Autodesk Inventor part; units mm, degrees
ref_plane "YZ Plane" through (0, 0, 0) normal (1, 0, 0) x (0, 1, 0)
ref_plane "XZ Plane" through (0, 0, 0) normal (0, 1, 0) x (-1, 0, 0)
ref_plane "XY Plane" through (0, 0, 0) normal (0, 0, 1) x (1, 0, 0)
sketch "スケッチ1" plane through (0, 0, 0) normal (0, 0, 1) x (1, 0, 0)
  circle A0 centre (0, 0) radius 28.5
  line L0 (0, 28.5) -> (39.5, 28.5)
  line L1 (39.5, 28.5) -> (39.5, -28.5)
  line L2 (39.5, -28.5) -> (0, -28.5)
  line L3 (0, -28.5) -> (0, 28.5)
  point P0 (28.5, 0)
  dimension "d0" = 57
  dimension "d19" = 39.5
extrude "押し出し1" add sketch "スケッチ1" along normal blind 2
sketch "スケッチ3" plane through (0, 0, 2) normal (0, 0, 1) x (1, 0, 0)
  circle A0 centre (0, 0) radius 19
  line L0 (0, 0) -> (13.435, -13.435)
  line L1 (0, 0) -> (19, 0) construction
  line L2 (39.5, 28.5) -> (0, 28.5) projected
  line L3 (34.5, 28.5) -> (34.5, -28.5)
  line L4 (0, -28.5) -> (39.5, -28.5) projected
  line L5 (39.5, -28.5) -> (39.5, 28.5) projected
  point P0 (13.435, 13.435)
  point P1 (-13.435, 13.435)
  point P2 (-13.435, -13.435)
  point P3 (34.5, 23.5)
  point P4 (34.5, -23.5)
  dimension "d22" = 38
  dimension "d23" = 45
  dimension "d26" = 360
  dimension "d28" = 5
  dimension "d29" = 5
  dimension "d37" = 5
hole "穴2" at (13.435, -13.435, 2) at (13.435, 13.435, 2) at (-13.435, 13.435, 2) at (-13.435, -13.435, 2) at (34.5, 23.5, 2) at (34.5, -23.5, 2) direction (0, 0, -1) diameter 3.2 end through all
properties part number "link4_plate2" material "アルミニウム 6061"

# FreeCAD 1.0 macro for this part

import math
import FreeCAD as App
import Part
import Sketcher

doc = App.newDocument("Part")
body = doc.addObject("PartDesign::Body", "Body")

# Sketch on XY plane
sketch1 = body.newObject("Sketcher::SketchObject", "Sketch")
sketch1.AttachmentSupport = (doc.getObject("XY_Plane"), [""])
sketch1.MapMode = "FlatFace"
sketch1.addGeometry([
    Part.LineSegment(App.Vector(0, -28, 0), App.Vector(40, -28, 0)),
    Part.LineSegment(App.Vector(40, -28, 0), App.Vector(40, 28, 0)),
    Part.LineSegment(App.Vector(40, 28, 0), App.Vector(0, 28, 0)),
    Part.ArcOfCircle(Part.Circle(App.Vector(0, 0, 0), App.Vector(0, 0, 1), 28), math.radians(90), math.radians(270)),
], False)
sketch1.addConstraint([
    Sketcher.Constraint("Coincident", 0, 2, 1, 1),
    Sketcher.Constraint("Coincident", 1, 2, 2, 1),
    Sketcher.Constraint("Tangent", 2, 2, 3, 1),
    Sketcher.Constraint("Tangent", 3, 2, 0, 1),
    Sketcher.Constraint("Horizontal", 0),
    Sketcher.Constraint("Vertical", 1),
    Sketcher.Constraint("Horizontal", 2),
    Sketcher.Constraint("Coincident", 3, 3, -1, 1),
    Sketcher.Constraint("Radius", 3, 28.5),
    Sketcher.Constraint("DistanceX", 0, 1, 0, 2, 39.5),
])
pad1 = body.newObject("PartDesign::Pad", "Pad")
pad1.Profile = sketch1
pad1.Length = 2

# Sketch on XY plane
sketch2 = body.newObject("Sketcher::SketchObject", "Sketch001")
sketch2.AttachmentSupport = (doc.getObject("XY_Plane"), [""])
sketch2.MapMode = "FlatFace"
sketch2.AttachmentOffset = App.Placement(App.Vector(0, 0, 2), App.Rotation())
sketch2.addGeometry([
    Part.Circle(App.Vector(13.4, -13.4, 0), App.Vector(0, 0, 1), 1.6),  # 0
    Part.Circle(App.Vector(13.4, 13.4, 0), App.Vector(0, 0, 1), 1.6),  # 1
    Part.Circle(App.Vector(-13.4, 13.4, 0), App.Vector(0, 0, 1), 1.6),  # 2
    Part.Circle(App.Vector(-13.4, -13.4, 0), App.Vector(0, 0, 1), 1.6),  # 3
    Part.Circle(App.Vector(34.5, 23.5, 0), App.Vector(0, 0, 1), 1.6),  # 4
    Part.Circle(App.Vector(34.5, -23.5, 0), App.Vector(0, 0, 1), 1.6),  # 5
], False)
sketch2.addConstraint([
    Sketcher.Constraint("Equal", 0, 1),
    Sketcher.Constraint("Equal", 1, 2),
    Sketcher.Constraint("Equal", 2, 3),
    Sketcher.Constraint("Equal", 3, 4),
    Sketcher.Constraint("Equal", 4, 5),
    Sketcher.Constraint("Symmetric", 0, 3, 2, 3, -1, 1),
    Sketcher.Constraint("Symmetric", 1, 3, 3, 3, -1, 1),
    Sketcher.Constraint("Symmetric", 1, 3, 2, 3, -2),
    Sketcher.Constraint("Symmetric", 4, 3, 5, 3, -1),
    Sketcher.Constraint("Diameter", 0, 3.2),
    Sketcher.Constraint("DistanceY", 5, 3, 4, 3, 47.0),
    Sketcher.Constraint("DistanceX", -1, 1, 4, 3, 34.5),
    Sketcher.Constraint("DistanceY", 0, 3, 1, 3, 26.87),
    Sketcher.Constraint("DistanceX", 2, 3, 1, 3, 26.87),
])
doc.recompute()
hole = body.newObject("PartDesign::Hole", "Hole")
hole.Profile = sketch2
hole.ThreadType = "None"
hole.Diameter = 3.2
hole.DepthType = "ThroughAll"

doc.recompute()
